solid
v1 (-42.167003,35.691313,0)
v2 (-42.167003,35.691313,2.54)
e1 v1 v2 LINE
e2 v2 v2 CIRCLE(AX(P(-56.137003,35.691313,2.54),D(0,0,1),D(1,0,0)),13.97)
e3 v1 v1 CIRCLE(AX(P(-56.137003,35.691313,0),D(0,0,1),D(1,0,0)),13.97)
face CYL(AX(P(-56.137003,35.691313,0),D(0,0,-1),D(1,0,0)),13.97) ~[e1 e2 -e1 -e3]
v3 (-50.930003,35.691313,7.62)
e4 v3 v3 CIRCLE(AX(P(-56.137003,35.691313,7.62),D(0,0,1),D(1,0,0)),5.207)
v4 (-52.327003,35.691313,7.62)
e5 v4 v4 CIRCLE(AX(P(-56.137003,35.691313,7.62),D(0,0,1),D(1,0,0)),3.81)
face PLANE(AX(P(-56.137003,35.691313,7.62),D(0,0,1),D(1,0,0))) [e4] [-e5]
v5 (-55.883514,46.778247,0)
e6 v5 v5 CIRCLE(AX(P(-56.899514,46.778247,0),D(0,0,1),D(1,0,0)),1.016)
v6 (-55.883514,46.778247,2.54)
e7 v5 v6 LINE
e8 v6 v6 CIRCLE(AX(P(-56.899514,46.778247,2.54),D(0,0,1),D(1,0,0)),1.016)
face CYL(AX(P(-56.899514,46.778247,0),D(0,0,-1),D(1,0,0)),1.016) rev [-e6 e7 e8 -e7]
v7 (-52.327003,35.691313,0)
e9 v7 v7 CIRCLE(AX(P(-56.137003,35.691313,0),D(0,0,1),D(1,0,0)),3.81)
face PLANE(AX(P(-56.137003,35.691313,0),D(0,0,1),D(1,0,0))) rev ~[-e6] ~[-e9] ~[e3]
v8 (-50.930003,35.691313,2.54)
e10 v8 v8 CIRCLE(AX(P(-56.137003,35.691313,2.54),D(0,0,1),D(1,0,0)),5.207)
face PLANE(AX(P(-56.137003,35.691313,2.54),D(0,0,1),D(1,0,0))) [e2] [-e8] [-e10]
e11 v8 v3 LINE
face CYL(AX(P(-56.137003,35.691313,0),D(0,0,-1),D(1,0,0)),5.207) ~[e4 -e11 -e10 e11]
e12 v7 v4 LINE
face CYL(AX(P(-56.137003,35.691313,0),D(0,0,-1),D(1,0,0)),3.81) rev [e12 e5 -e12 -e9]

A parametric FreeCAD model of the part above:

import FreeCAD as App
import Part
import Sketcher
from FreeCAD import Vector
Q = App.Units.Quantity

doc = App.newDocument("Part")
body = doc.addObject("PartDesign::Body", "Body")

# Sketch on XY plane
sketch1 = body.newObject("Sketcher::SketchObject", "Sketch")
sketch1.AttachmentSupport = (doc.getObject("XY_Plane"), [""])
sketch1.MapMode = "FlatFace"
sketch1.addGeometry(Part.Circle(Vector(-56.137003, 35.691313, 0), Vector(0, 0, 1), 13.97), False)
sketch1.addGeometry(Part.Circle(Vector(-56.137003, 35.691313, 0), Vector(0, 0, 1), 5.207), False)
sketch1.addGeometry(Part.Circle(Vector(-56.899514, 46.778247, 0), Vector(0, 0, 1), 1.016), False)
sketch1.addConstraint(Sketcher.Constraint("Coincident", 1, 3, 0, 3))
sketch1.addConstraint(Sketcher.Constraint("Diameter", 0, Q("1.1 in")))
sketch1.addConstraint(Sketcher.Constraint("Diameter", 1, Q("0.41 in")))
sketch1.addConstraint(Sketcher.Constraint("Diameter", 2, Q("0.08 in")))
sketch1.addConstraint(Sketcher.Constraint("DistanceX", 2, 3, 0, 3, Q("0.762511 mm")))
sketch1.addConstraint(Sketcher.Constraint("DistanceX", 0, 3, -1, 1, Q("56.137003 mm")))
sketch1.addConstraint(Sketcher.Constraint("DistanceY", -1, 1, 0, 3, Q("35.691313 mm")))
sketch1.addConstraint(Sketcher.Constraint("DistanceY", -1, 1, 2, 3, Q("46.778247 mm")))
pad1 = body.newObject("PartDesign::Pad", "Pad")
pad1.Profile = sketch1
pad1.Length = Q("0.1 in")

# Sketch on XY plane
sketch2 = body.newObject("Sketcher::SketchObject", "Sketch001")
sketch2.AttachmentSupport = (doc.getObject("XY_Plane"), [""])
sketch2.MapMode = "FlatFace"
sketch2.addGeometry(Part.Circle(Vector(-56.137003, 35.691313, 0), Vector(0, 0, 1), 5.207), False)
sketch2.addGeometry(Part.Circle(Vector(-56.137003, 35.691313, 0), Vector(0, 0, 1), 3.81), False)
sketch2.addConstraint(Sketcher.Constraint("Coincident", 1, 3, 0, 3))
sketch2.addConstraint(Sketcher.Constraint("Diameter", 1, Q("0.3 in")))
sketch2.addConstraint(Sketcher.Constraint("Diameter", 0, Q("0.41 in")))
sketch2.addConstraint(Sketcher.Constraint("DistanceX", 0, 3, -1, 1, Q("56.137003 mm")))
sketch2.addConstraint(Sketcher.Constraint("DistanceY", -1, 1, 0, 3, Q("35.691313 mm")))
pad2 = body.newObject("PartDesign::Pad", "Pad001")
pad2.Profile = sketch2
pad2.Length = Q("0.3 in")

doc.recompute()
